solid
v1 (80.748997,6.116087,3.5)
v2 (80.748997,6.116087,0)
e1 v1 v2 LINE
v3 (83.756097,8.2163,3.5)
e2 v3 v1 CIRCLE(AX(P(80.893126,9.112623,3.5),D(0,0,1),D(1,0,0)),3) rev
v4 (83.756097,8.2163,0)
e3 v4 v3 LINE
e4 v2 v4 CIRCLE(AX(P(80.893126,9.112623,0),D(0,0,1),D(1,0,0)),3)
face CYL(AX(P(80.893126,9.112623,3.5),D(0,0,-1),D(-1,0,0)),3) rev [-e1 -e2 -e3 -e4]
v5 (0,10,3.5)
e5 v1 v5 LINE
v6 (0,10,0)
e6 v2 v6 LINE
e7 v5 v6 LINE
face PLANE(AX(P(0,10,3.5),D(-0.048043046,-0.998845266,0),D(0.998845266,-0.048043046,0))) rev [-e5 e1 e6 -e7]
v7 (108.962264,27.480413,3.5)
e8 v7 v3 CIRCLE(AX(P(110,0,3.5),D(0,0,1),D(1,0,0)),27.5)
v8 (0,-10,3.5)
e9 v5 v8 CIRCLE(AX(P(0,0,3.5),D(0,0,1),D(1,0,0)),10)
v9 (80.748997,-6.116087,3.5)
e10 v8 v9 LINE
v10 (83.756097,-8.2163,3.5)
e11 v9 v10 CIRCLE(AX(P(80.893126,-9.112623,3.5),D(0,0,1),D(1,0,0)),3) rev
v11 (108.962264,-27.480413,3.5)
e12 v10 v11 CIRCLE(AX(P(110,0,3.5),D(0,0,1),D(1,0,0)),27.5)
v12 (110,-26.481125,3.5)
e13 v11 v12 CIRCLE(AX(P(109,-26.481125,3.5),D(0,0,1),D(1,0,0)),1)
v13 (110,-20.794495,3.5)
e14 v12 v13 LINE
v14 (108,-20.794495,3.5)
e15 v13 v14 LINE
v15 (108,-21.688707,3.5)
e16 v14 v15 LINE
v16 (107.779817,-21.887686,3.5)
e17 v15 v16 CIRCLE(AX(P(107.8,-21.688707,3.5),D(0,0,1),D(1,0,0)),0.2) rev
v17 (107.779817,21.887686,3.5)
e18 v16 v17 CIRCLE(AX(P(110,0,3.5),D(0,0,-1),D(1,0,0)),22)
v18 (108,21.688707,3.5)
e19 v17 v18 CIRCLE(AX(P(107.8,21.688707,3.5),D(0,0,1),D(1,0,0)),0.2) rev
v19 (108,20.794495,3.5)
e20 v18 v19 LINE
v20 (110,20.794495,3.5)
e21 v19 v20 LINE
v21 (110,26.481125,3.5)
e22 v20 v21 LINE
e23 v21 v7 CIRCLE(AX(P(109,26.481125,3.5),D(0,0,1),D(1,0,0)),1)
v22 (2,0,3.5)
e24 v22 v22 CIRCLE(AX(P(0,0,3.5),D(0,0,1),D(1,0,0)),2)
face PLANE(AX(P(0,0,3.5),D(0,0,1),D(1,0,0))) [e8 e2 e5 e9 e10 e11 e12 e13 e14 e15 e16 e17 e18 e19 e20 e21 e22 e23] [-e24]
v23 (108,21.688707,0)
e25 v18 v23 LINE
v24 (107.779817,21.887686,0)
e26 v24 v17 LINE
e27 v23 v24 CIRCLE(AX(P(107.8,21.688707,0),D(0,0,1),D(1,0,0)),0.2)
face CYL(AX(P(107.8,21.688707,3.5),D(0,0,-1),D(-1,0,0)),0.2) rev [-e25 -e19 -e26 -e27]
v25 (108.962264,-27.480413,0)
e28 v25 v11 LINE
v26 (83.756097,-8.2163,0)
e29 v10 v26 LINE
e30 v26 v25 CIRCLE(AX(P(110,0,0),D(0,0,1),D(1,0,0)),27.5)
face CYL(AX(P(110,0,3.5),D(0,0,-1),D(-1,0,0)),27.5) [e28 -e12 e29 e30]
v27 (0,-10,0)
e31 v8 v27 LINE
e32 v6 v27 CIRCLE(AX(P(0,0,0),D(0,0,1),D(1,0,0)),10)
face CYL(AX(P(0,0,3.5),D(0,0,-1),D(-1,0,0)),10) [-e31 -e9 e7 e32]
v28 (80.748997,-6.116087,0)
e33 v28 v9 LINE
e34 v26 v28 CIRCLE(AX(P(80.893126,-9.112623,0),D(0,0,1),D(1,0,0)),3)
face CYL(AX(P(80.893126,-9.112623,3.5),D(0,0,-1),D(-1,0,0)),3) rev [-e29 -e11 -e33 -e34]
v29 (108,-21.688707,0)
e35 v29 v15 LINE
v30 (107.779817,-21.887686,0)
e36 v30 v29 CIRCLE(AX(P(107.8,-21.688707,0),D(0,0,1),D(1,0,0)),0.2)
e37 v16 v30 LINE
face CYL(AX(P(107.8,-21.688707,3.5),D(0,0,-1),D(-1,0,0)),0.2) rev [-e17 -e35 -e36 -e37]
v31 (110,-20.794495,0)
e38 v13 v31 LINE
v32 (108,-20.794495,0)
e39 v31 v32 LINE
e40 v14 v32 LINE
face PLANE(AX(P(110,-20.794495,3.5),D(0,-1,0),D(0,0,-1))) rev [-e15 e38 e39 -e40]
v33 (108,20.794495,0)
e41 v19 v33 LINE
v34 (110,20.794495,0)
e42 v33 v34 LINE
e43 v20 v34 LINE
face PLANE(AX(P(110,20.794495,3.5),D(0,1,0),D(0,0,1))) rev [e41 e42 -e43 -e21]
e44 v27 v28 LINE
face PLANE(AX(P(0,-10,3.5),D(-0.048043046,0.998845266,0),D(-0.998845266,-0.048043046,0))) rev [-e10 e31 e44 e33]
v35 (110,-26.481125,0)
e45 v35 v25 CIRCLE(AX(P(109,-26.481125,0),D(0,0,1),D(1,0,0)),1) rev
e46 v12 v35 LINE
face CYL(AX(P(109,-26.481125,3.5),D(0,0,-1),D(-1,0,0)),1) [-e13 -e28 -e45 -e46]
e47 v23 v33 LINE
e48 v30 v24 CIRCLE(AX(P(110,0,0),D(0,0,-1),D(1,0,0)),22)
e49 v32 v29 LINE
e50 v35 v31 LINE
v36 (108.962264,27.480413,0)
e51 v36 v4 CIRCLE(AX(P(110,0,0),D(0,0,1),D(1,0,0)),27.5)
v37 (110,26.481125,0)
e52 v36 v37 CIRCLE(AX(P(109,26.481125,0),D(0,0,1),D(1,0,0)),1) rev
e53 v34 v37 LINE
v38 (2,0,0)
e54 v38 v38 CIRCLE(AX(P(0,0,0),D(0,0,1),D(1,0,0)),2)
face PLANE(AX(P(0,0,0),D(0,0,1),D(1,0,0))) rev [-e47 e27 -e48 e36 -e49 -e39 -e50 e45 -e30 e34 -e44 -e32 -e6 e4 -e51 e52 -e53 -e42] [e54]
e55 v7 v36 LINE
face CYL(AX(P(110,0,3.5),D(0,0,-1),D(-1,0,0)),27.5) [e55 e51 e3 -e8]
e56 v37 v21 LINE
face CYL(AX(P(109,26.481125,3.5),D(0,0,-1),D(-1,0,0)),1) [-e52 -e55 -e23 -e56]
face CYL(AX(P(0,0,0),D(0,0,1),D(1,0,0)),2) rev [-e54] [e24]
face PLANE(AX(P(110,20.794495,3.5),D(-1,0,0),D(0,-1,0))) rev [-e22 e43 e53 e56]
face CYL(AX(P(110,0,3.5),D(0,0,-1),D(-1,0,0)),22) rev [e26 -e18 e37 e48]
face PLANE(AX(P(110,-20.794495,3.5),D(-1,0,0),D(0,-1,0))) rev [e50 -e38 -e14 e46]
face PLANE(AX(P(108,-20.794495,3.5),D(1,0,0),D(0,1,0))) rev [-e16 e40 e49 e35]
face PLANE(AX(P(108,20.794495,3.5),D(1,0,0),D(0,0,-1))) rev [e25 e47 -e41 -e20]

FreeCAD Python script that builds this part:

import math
import FreeCAD as App
import Part
import Sketcher


def edges_at(feature, points):
    """Names of the edges that pass closest to the given points."""
    edges = feature.Shape.Edges
    near = lambda p: min(range(len(edges)), key=lambda i: edges[i].distToShape(Part.Vertex(*p))[0])
    return sorted({f"Edge{near(p) + 1}" for p in points})

doc = App.newDocument("Part")
params = doc.addObject("Spreadsheet::Sheet", "Params")
for row, (alias, value) in enumerate([
    ("sketch1_radius", "10 mm"),
    ("sketch1_radius2", "22 mm"),
    ("sketch1_radius3", "27.5 mm"),
    ("sketch1_width", "2 mm"),
    ("pad1_length", "3.5 mm"),
    ("fillet_radius", "3 mm"),
    ("fillet2_radius", "3 mm"),
    ("fillet3_radius", "1 mm"),
    ("fillet4_radius", "1 mm"),
    ("fillet5_radius", "0.2 mm"),
    ("fillet6_radius", "0.2 mm"),
    ("sketch2_diameter", "4 mm"),
    ("pocket1_length", "3.5 mm"),
], start=1):
    params.set(f"A{row}", alias)
    params.set(f"B{row}", "=" + value)
    params.setAlias(f"B{row}", alias)

body = doc.addObject("PartDesign::Body", "Body")

# Sketch on XY plane
sketch1 = body.newObject("Sketcher::SketchObject", "Sketch")
sketch1.AttachmentSupport = (doc.getObject("XY_Plane"), [""])
sketch1.MapMode = "FlatFace"
sketch1.addGeometry(Part.LineSegment(App.Vector(83.2, 6, 0), App.Vector(0, 10, 0)), False)
sketch1.addGeometry(Part.ArcOfCircle(Part.Circle(App.Vector(0, 0, 0), App.Vector(0, 0, 1), 10), math.radians(90), math.radians(270)), False)
sketch1.addGeometry(Part.LineSegment(App.Vector(0, -10, 0), App.Vector(83.2, -6, 0)), False)
sketch1.addGeometry(Part.ArcOfCircle(Part.Circle(App.Vector(110, 0, 0), App.Vector(0, 0, 1), 27.5), math.radians(-167), math.radians(-90)), False)
sketch1.addGeometry(Part.LineSegment(App.Vector(110, -27.5, 0), App.Vector(110, -20.8, 0)), False)
sketch1.addGeometry(Part.LineSegment(App.Vector(110, -20.8, 0), App.Vector(108, -20.8, 0)), False)
sketch1.addGeometry(Part.LineSegment(App.Vector(108, -20.8, 0), App.Vector(108, -21.9, 0)), False)
sketch1.addGeometry(Part.ArcOfCircle(Part.Circle(App.Vector(110, 0, 0), App.Vector(0, 0, 1), 22), math.radians(95), math.radians(265)), False)
sketch1.addGeometry(Part.LineSegment(App.Vector(108, 21.9, 0), App.Vector(108, 20.8, 0)), False)
sketch1.addGeometry(Part.LineSegment(App.Vector(108, 20.8, 0), App.Vector(110, 20.8, 0)), False)
sketch1.addGeometry(Part.LineSegment(App.Vector(110, 20.8, 0), App.Vector(110, 27.5, 0)), False)
sketch1.addGeometry(Part.ArcOfCircle(Part.Circle(App.Vector(110, 0, 0), App.Vector(0, 0, 1), 27.5), math.radians(90), math.radians(167)), False)
sketch1.addConstraint(Sketcher.Constraint("Coincident", 0, 2, 1, 1))
sketch1.addConstraint(Sketcher.Constraint("Coincident", 1, 2, 2, 1))
sketch1.addConstraint(Sketcher.Constraint("Coincident", 2, 2, 3, 1))
sketch1.addConstraint(Sketcher.Constraint("Coincident", 3, 2, 4, 1))
sketch1.addConstraint(Sketcher.Constraint("Coincident", 4, 2, 5, 1))
sketch1.addConstraint(Sketcher.Constraint("Coincident", 5, 2, 6, 1))
sketch1.addConstraint(Sketcher.Constraint("Coincident", 6, 2, 7, 2))
sketch1.addConstraint(Sketcher.Constraint("Coincident", 7, 1, 8, 1))
sketch1.addConstraint(Sketcher.Constraint("Coincident", 8, 2, 9, 1))
sketch1.addConstraint(Sketcher.Constraint("Coincident", 9, 2, 10, 1))
sketch1.addConstraint(Sketcher.Constraint("Coincident", 10, 2, 11, 1))
sketch1.addConstraint(Sketcher.Constraint("Coincident", 11, 2, 0, 1))
sketch1.addConstraint(Sketcher.Constraint("Vertical", 4))
sketch1.addConstraint(Sketcher.Constraint("Horizontal", 5))
sketch1.addConstraint(Sketcher.Constraint("Vertical", 6))
sketch1.addConstraint(Sketcher.Constraint("Vertical", 8))
sketch1.addConstraint(Sketcher.Constraint("Horizontal", 9))
sketch1.addConstraint(Sketcher.Constraint("Vertical", 10))
sketch1.addConstraint(Sketcher.Constraint("Coincident", 1, 3, -1, 1))
sketch1.addConstraint(Sketcher.Constraint("Coincident", 7, 3, 3, 3))
sketch1.addConstraint(Sketcher.Constraint("Coincident", 11, 3, 3, 3))
sketch1.addConstraint(Sketcher.Constraint("Equal", 3, 11))
sketch1.addConstraint(Sketcher.Constraint("Symmetric", 6, 2, 7, 1, -1))
sketch1.addConstraint(Sketcher.Constraint("Symmetric", 4, 2, 9, 2, -1))
sketch1.addConstraint(Sketcher.Constraint("PointOnObject", 0, 2, -2))
sketch1.addConstraint(Sketcher.Constraint("PointOnObject", 1, 2, -2))
sketch1.addConstraint(Sketcher.Constraint("Vertical", 11, 3, 3, 2))
sketch1.addConstraint(Sketcher.Constraint("Vertical", 2, 2, 11, 2))
sketch1.addConstraint(Sketcher.Constraint("Radius", 1, 10.0))
sketch1.addConstraint(Sketcher.Constraint("Radius", 7, 22.0))
sketch1.addConstraint(Sketcher.Constraint("Radius", 3, 27.5))
sketch1.addConstraint(Sketcher.Constraint("DistanceX", 5, 2, 5, 1, 2.0))
sketch1.addConstraint(Sketcher.Constraint("DistanceX", -1, 1, 3, 3, 110.0))
sketch1.addConstraint(Sketcher.Constraint("DistanceY", 2, 2, -1, 1, 6.0))
sketch1.addConstraint(Sketcher.Constraint("DistanceY", 4, 1, 4, 2, 6.705505))
sketch1.setExpression("Constraints[28]", "Params.sketch1_radius")
sketch1.setExpression("Constraints[29]", "Params.sketch1_radius2")
sketch1.setExpression("Constraints[30]", "Params.sketch1_radius3")
sketch1.setExpression("Constraints[31]", "Params.sketch1_width")
pad1 = body.newObject("PartDesign::Pad", "Pad")
pad1.Profile = sketch1
pad1.setExpression("Length", "Params.pad1_length")
doc.recompute()

fillet = body.newObject("PartDesign::Fillet", "Fillet")
fillet.Base = (pad1, edges_at(pad1, [(83.163, 6, 1.75)]))
fillet.setExpression("Radius", "Params.fillet_radius")
doc.recompute()

fillet2 = body.newObject("PartDesign::Fillet", "Fillet001")
fillet2.Base = (fillet, edges_at(fillet, [(83.163, -6, 1.75)]))
fillet2.setExpression("Radius", "Params.fillet2_radius")
doc.recompute()

fillet3 = body.newObject("PartDesign::Fillet", "Fillet002")
fillet3.Base = (fillet2, edges_at(fillet2, [(110, 27.5, 1.75)]))
fillet3.setExpression("Radius", "Params.fillet3_radius")
doc.recompute()

fillet4 = body.newObject("PartDesign::Fillet", "Fillet003")
fillet4.Base = (fillet3, edges_at(fillet3, [(110, -27.5, 1.75)]))
fillet4.setExpression("Radius", "Params.fillet4_radius")
doc.recompute()

fillet5 = body.newObject("PartDesign::Fillet", "Fillet004")
fillet5.Base = (fillet4, edges_at(fillet4, [(108, -21.909, 1.75)]))
fillet5.setExpression("Radius", "Params.fillet5_radius")
doc.recompute()

fillet6 = body.newObject("PartDesign::Fillet", "Fillet005")
fillet6.Base = (fillet5, edges_at(fillet5, [(108, 21.909, 1.75)]))
fillet6.setExpression("Radius", "Params.fillet6_radius")

# Sketch on XY plane
sketch2 = body.newObject("Sketcher::SketchObject", "Sketch001")
sketch2.AttachmentSupport = (doc.getObject("XY_Plane"), [""])
sketch2.MapMode = "FlatFace"
sketch2.AttachmentOffset = App.Placement(App.Vector(0, 0, 3.5), App.Rotation())
sketch2.addGeometry(Part.Circle(App.Vector(0, 0, 0), App.Vector(0, 0, 1), 2), False)
sketch2.addConstraint(Sketcher.Constraint("Coincident", 0, 3, -1, 1))
sketch2.addConstraint(Sketcher.Constraint("Diameter", 0, 4.0))
sketch2.setExpression("Constraints[1]", "Params.sketch2_diameter")
pocket1 = body.newObject("PartDesign::Pocket", "Pocket")
pocket1.Profile = sketch2
pocket1.setExpression("Length", "Params.pocket1_length")

doc.recompute()
